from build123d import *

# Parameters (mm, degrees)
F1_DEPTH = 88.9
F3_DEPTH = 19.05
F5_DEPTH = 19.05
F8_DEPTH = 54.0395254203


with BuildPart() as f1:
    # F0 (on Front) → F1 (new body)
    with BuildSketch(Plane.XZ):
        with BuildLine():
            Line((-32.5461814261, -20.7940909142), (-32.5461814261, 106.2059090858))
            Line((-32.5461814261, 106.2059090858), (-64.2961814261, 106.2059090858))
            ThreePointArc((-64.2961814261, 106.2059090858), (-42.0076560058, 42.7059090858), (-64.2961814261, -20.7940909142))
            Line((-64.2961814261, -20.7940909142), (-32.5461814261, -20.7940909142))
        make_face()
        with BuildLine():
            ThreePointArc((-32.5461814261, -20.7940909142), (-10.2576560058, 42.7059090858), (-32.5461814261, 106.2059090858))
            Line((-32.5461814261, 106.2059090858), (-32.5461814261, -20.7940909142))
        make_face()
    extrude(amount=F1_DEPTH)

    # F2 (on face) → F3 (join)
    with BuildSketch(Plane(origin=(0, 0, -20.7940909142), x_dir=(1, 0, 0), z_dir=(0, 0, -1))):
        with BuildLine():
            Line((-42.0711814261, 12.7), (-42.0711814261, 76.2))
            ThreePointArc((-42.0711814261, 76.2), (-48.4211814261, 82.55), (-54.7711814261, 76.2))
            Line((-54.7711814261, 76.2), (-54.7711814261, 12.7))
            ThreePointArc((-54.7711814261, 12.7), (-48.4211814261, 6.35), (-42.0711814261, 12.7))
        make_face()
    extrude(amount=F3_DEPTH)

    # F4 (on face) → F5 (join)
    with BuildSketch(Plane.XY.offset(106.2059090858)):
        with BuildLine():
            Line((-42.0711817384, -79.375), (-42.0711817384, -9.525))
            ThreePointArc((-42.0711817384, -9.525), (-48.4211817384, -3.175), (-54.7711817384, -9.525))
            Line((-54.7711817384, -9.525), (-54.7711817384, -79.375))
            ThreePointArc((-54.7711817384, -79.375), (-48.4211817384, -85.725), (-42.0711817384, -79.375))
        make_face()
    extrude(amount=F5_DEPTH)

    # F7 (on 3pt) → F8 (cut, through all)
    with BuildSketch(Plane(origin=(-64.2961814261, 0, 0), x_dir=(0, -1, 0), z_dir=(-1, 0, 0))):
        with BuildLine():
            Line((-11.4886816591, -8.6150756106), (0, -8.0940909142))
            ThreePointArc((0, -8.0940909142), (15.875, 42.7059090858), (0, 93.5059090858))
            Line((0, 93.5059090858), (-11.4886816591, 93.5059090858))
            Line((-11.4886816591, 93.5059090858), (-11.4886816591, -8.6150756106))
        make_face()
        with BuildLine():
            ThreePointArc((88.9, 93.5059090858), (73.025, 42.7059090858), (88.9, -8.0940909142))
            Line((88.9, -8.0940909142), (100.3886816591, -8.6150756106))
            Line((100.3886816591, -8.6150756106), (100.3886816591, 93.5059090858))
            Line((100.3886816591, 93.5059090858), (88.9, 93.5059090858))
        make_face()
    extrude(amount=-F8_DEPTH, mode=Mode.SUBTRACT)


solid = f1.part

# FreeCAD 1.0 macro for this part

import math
import FreeCAD as App
import Part
import Sketcher

V = App.Vector
Q = App.Units.Quantity

doc = App.newDocument("Part")
body = doc.addObject("PartDesign::Body", "Body")

# Sketch on XZ plane
sketch1 = doc.addObject("Sketcher::SketchObject", "Sketch")
body.addObject(sketch1)
sketch1.AttachmentSupport = (doc.XZ_Plane, [""])
sketch1.MapMode = "FlatFace"
sketch1.addGeometry([
    Part.LineSegment(V(-33, 106, 0), V(-64, 106, 0)),
    Part.ArcOfCircle(Part.Circle(V(-144, 43, 0), V(0, 0, 1), 102), math.radians(-39), math.radians(39)),
    Part.LineSegment(V(-64, -21, 0), V(-33, -21, 0)),
    Part.ArcOfCircle(Part.Circle(V(-112, 43, 0), V(0, 0, 1), 102), math.radians(-39), math.radians(39)),
], False)
sketch1.addConstraint([
    Sketcher.Constraint("Coincident", 0, 2, 1, 2),
    Sketcher.Constraint("Coincident", 1, 1, 2, 1),
    Sketcher.Constraint("Coincident", 2, 2, 3, 1),
    Sketcher.Constraint("Coincident", 3, 2, 0, 1),
    Sketcher.Constraint("Horizontal", 0),
    Sketcher.Constraint("Horizontal", 2),
    Sketcher.Constraint("Equal", 1, 3),
    Sketcher.Constraint("Horizontal", 1, 3, 3, 3),
    Sketcher.Constraint("Vertical", 0, 2, 1, 1),
    Sketcher.Constraint("Radius", 1, Q("4 in")),
    Sketcher.Constraint("DistanceY", 1, 1, 0, 2, Q("5 in")),
    Sketcher.Constraint("DistanceX", 0, 2, 0, 1, Q("1.25 in")),
    Sketcher.Constraint("DistanceY", -1, 1, 1, 3, 42.705909),
    Sketcher.Constraint("DistanceX", 0, 2, -1, 1, 64.296181),
])
pad1 = doc.addObject("PartDesign::Pad", "Pad")
body.addObject(pad1)
pad1.Profile = sketch1
pad1.Length = Q("3.5 in")

# Sketch on XY plane
sketch2 = doc.addObject("Sketcher::SketchObject", "Sketch001")
body.addObject(sketch2)
sketch2.AttachmentSupport = (doc.XY_Plane, [""])
sketch2.MapMode = "FlatFace"
sketch2.AttachmentOffset = App.Placement(V(0, 0, -20.794091), App.Rotation())
sketch2.addGeometry([
    Part.LineSegment(V(-42, -13, 0), V(-42, -76, 0)),
    Part.ArcOfCircle(Part.Circle(V(-48, -76, 0), V(0, 0, 1), 6), math.radians(180), math.radians(360)),
    Part.LineSegment(V(-55, -76, 0), V(-55, -13, 0)),
    Part.ArcOfCircle(Part.Circle(V(-48, -13, 0), V(0, 0, 1), 6), math.radians(0), math.radians(180)),
], False)
sketch2.addConstraint([
    Sketcher.Constraint("Tangent", 0, 2, 1, 2),
    Sketcher.Constraint("Tangent", 1, 1, 2, 1),
    Sketcher.Constraint("Tangent", 2, 2, 3, 2),
    Sketcher.Constraint("Tangent", 3, 1, 0, 1),
    Sketcher.Constraint("Vertical", 0),
    Sketcher.Constraint("Vertical", 2),
    Sketcher.Constraint("Radius", 1, Q("0.25 in")),
    Sketcher.Constraint("DistanceY", 0, 2, 0, 1, Q("2.5 in")),
    Sketcher.Constraint("DistanceY", 1, 3, -1, 1, Q("3 in")),
    Sketcher.Constraint("DistanceX", 1, 3, -1, 1, 48.421181),
])
pad2 = doc.addObject("PartDesign::Pad", "Pad001")
body.addObject(pad2)
pad2.Profile = sketch2
pad2.Length = Q("0.75 in")
pad2.Reversed = True

# Sketch on XY plane
sketch3 = doc.addObject("Sketcher::SketchObject", "Sketch002")
body.addObject(sketch3)
sketch3.AttachmentSupport = (doc.XY_Plane, [""])
sketch3.MapMode = "FlatFace"
sketch3.AttachmentOffset = App.Placement(V(0, 0, 106.205909), App.Rotation())
sketch3.addGeometry([
    Part.LineSegment(V(-42, -79, 0), V(-42, -10, 0)),
    Part.ArcOfCircle(Part.Circle(V(-48, -10, 0), V(0, 0, 1), 6), math.radians(0), math.radians(180)),
    Part.LineSegment(V(-55, -10, 0), V(-55, -79, 0)),
    Part.ArcOfCircle(Part.Circle(V(-48, -79, 0), V(0, 0, 1), 6), math.radians(180), math.radians(360)),
], False)
sketch3.addConstraint([
    Sketcher.Constraint("Tangent", 0, 2, 1, 1),
    Sketcher.Constraint("Tangent", 1, 2, 2, 1),
    Sketcher.Constraint("Tangent", 2, 2, 3, 1),
    Sketcher.Constraint("Tangent", 3, 2, 0, 1),
    Sketcher.Constraint("Vertical", 0),
    Sketcher.Constraint("Vertical", 2),
    Sketcher.Constraint("Radius", 1, Q("0.25 in")),
    Sketcher.Constraint("DistanceY", 0, 1, 0, 2, Q("2.75 in")),
    Sketcher.Constraint("DistanceY", 1, 3, -1, 1, Q("0.375 in")),
    Sketcher.Constraint("DistanceX", 1, 3, -1, 1, 48.421182),
])
pad3 = doc.addObject("PartDesign::Pad", "Pad002")
body.addObject(pad3)
pad3.Profile = sketch3
pad3.Length = Q("0.75 in")

# Sketch on YZ plane
sketch4 = doc.addObject("Sketcher::SketchObject", "Sketch003")
body.addObject(sketch4)
sketch4.AttachmentSupport = (doc.YZ_Plane, [""])
sketch4.MapMode = "FlatFace"
sketch4.AttachmentOffset = App.Placement(V(0, 0, -64.296181), App.Rotation())
sketch4.addGeometry([
    Part.LineSegment(V(11, -9, 0), V(0, -8, 0)),  # 0
    Part.ArcOfCircle(Part.Circle(V(73, 43, 0), V(0, 0, 1), 89), math.radians(145), math.radians(215)),  # 1
    Part.LineSegment(V(0, 94, 0), V(11, 94, 0)),  # 2
    Part.LineSegment(V(11, 94, 0), V(11, -9, 0)),  # 3
    Part.ArcOfCircle(Part.Circle(V(-162, 43, 0), V(0, 0, 1), 89), math.radians(-35), math.radians(35)),  # 4
    Part.LineSegment(V(-89, -8, 0), V(-100, -9, 0)),  # 5
    Part.LineSegment(V(-100, -9, 0), V(-100, 94, 0)),  # 6
    Part.LineSegment(V(-100, 94, 0), V(-89, 94, 0)),  # 7
], False)
sketch4.addConstraint([
    Sketcher.Constraint("Coincident", 0, 2, 1, 2),
    Sketcher.Constraint("Coincident", 1, 1, 2, 1),
    Sketcher.Constraint("Coincident", 2, 2, 3, 1),
    Sketcher.Constraint("Coincident", 3, 2, 0, 1),
    Sketcher.Constraint("Coincident", 4, 1, 5, 1),
    Sketcher.Constraint("Coincident", 5, 2, 6, 1),
    Sketcher.Constraint("Coincident", 6, 2, 7, 1),
    Sketcher.Constraint("Coincident", 7, 2, 4, 2),
    Sketcher.Constraint("Horizontal", 2),
    Sketcher.Constraint("Vertical", 3),
    Sketcher.Constraint("Vertical", 6),
    Sketcher.Constraint("Horizontal", 7),
    Sketcher.Constraint("Equal", 1, 4),
    Sketcher.Constraint("PointOnObject", 0, 2, -2),
    Sketcher.Constraint("PointOnObject", 1, 1, -2),
    Sketcher.Constraint("Horizontal", 1, 3, 4, 3),
    Sketcher.Constraint("Horizontal", 0, 2, 4, 1),
    Sketcher.Constraint("Horizontal", 3, 2, 5, 2),
    Sketcher.Constraint("Horizontal", 2, 2, 6, 2),
    Sketcher.Constraint("Equal", 2, 7),
    Sketcher.Constraint("DistanceY", 0, 2, 1, 3, Q("2 in")),
    Sketcher.Constraint("DistanceX", 4, 1, -1, 1, Q("3.5 in")),
    Sketcher.Constraint("Radius", 1, Q("3.5125 in")),
    Sketcher.Constraint("DistanceX", 2, 1, 2, 2, 11.488682),
    Sketcher.Constraint("Distance", 0, 11.500488),
    Sketcher.Constraint("DistanceY", -1, 1, 1, 3, 42.705909),
])
pocket1 = doc.addObject("PartDesign::Pocket", "Pocket")
body.addObject(pocket1)
pocket1.Profile = sketch4
pocket1.Type = "ThroughAll"
pocket1.Reversed = True

doc.recompute()
